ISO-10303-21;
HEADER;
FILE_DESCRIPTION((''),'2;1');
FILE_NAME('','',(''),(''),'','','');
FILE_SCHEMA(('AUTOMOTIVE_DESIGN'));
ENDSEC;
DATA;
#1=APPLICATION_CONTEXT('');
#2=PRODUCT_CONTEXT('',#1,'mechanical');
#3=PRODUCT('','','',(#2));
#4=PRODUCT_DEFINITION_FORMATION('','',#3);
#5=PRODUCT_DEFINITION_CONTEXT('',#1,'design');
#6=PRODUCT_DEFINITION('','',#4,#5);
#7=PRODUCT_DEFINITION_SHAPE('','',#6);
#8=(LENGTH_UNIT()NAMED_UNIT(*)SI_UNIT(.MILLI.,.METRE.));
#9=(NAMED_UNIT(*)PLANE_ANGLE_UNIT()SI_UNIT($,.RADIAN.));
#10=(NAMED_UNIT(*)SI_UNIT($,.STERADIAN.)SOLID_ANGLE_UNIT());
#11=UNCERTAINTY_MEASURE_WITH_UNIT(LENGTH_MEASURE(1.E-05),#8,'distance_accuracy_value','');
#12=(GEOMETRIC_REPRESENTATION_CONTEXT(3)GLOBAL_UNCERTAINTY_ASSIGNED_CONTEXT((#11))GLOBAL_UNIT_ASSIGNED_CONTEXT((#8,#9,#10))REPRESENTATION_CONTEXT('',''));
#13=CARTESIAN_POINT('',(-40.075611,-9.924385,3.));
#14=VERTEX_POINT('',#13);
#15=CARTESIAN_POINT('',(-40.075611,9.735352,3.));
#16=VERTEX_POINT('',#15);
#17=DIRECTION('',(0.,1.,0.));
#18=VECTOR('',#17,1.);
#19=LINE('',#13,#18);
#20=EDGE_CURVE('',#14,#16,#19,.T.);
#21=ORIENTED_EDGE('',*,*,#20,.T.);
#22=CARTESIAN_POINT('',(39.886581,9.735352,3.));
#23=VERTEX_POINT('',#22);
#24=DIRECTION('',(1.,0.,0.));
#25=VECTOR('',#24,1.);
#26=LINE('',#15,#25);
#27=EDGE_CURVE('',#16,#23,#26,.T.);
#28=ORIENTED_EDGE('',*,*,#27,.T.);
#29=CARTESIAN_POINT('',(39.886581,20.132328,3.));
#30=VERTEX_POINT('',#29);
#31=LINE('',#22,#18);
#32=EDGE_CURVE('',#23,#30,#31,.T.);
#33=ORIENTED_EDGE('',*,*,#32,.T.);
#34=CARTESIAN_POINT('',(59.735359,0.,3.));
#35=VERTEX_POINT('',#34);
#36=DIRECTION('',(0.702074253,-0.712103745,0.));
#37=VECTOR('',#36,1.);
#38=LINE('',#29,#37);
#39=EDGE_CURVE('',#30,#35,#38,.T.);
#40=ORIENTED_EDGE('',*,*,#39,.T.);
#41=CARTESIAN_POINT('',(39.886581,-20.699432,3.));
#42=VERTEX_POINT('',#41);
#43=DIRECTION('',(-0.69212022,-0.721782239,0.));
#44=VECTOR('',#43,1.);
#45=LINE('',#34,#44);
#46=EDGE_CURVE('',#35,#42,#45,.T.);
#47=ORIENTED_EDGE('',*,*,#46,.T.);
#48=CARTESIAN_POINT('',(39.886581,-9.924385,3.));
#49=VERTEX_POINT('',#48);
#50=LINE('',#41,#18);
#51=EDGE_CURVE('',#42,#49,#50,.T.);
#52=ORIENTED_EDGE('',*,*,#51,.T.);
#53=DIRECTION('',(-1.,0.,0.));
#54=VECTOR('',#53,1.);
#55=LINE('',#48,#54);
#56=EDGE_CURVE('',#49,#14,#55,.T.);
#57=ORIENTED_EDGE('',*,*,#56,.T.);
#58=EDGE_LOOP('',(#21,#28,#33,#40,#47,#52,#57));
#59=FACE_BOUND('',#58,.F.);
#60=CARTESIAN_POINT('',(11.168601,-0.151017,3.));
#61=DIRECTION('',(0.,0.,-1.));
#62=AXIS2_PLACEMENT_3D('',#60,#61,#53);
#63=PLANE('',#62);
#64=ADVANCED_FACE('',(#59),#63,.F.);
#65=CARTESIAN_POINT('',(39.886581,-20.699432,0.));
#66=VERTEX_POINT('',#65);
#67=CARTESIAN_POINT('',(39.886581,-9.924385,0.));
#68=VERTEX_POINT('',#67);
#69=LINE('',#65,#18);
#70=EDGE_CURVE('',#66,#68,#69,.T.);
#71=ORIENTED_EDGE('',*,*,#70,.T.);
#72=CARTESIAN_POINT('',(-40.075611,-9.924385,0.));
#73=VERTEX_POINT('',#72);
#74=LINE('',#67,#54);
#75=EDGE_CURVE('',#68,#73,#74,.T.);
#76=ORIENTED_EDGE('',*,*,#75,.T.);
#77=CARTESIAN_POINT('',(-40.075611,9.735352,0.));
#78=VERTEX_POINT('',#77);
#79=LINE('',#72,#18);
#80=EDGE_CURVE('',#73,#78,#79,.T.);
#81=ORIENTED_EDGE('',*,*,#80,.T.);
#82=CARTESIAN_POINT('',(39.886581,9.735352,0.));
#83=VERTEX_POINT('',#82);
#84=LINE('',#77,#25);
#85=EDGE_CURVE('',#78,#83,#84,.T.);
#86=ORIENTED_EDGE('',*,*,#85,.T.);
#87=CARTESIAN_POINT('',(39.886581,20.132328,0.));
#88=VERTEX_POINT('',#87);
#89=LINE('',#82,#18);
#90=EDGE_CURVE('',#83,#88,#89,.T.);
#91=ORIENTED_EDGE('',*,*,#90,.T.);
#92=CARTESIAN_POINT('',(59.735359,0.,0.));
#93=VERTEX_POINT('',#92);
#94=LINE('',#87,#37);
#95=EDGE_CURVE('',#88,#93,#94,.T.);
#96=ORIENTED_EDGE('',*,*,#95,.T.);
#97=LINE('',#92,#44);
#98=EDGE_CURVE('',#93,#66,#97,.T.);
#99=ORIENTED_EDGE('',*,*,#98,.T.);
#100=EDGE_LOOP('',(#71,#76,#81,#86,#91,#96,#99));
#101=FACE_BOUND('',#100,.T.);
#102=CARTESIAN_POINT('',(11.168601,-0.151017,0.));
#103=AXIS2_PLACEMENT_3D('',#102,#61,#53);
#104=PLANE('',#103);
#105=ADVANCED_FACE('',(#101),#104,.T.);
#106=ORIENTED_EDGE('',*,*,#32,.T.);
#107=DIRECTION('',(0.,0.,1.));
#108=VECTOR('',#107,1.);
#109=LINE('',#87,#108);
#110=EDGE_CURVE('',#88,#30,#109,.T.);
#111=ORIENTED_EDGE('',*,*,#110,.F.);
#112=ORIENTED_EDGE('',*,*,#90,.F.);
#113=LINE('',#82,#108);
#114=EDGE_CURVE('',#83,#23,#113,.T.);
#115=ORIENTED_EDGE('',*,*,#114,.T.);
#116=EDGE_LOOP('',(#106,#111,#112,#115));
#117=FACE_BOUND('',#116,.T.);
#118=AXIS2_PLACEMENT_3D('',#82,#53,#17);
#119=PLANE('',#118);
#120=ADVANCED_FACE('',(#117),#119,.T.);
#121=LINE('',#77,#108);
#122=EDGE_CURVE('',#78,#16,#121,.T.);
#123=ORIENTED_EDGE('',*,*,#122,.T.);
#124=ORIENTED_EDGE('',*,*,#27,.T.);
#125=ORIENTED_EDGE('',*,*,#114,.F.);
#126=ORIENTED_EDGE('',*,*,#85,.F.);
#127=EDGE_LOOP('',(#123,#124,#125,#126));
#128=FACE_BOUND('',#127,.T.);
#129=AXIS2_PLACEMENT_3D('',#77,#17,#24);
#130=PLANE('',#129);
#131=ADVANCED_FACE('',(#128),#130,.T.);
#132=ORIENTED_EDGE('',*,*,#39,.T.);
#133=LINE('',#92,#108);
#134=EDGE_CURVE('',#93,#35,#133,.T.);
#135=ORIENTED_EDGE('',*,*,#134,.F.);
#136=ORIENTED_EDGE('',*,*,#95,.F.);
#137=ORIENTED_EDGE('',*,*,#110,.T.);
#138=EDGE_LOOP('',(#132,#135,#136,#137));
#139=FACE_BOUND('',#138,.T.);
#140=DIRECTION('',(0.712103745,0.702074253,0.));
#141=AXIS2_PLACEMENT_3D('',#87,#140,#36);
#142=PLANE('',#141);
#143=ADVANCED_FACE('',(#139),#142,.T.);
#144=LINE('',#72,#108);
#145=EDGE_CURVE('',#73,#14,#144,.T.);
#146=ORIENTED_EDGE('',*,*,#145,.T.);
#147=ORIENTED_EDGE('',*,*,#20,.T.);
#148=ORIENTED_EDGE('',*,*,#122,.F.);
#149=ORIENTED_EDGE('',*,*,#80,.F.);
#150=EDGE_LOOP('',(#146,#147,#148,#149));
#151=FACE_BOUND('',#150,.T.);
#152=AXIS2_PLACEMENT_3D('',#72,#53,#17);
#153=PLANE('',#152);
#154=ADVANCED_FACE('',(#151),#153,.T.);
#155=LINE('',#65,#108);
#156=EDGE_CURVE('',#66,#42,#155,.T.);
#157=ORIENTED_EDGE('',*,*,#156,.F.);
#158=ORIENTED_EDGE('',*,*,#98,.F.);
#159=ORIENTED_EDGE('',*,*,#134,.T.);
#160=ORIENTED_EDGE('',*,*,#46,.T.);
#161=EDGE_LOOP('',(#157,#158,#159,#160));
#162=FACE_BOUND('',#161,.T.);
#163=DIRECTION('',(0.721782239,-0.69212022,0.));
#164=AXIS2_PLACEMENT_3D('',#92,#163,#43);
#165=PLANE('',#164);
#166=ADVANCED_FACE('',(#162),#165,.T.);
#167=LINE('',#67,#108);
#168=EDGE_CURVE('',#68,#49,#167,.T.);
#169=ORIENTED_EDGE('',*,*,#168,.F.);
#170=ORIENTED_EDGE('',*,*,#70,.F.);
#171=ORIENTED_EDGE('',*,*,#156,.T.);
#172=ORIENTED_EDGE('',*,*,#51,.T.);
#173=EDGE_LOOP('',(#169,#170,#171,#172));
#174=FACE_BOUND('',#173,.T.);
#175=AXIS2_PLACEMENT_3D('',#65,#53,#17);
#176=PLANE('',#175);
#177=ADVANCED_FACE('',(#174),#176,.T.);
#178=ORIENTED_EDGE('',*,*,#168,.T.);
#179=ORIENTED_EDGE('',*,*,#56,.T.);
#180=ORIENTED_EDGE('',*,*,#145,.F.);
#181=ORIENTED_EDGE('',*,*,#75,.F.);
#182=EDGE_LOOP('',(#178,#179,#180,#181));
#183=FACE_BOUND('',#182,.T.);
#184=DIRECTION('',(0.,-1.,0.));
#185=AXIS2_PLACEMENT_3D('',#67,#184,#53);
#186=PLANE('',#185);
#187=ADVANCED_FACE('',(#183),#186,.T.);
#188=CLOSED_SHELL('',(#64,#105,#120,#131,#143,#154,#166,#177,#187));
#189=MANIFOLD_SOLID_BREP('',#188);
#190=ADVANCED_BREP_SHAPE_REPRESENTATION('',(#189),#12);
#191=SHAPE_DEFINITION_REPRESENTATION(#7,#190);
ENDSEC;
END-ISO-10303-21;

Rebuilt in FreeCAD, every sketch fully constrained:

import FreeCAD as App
import Part
import Sketcher
from FreeCAD import Vector

doc = App.newDocument("Part")
body = doc.addObject("PartDesign::Body", "Body")

# Sketch on XY plane
sketch1 = doc.addObject("Sketcher::SketchObject", "Sketch")
body.addObject(sketch1)
sketch1.AttachmentSupport = (doc.XY_Plane, [""])
sketch1.MapMode = "FlatFace"
sketch1.addGeometry([
    Part.LineSegment(Vector(40, 10, 0), Vector(-40, 10, 0)),  # 0
    Part.LineSegment(Vector(-40, 10, 0), Vector(-40, -10, 0)),  # 1
    Part.LineSegment(Vector(-40, -10, 0), Vector(40, -10, 0)),  # 2
    Part.LineSegment(Vector(40, -10, 0), Vector(40, -21, 0)),  # 3
    Part.LineSegment(Vector(40, -21, 0), Vector(60, 0, 0)),  # 4
    Part.LineSegment(Vector(60, 0, 0), Vector(40, 20, 0)),  # 5
    Part.LineSegment(Vector(40, 20, 0), Vector(40, 10, 0)),  # 6
], False)
sketch1.addConstraint([
    Sketcher.Constraint("Coincident", 0, 2, 1, 1),
    Sketcher.Constraint("Coincident", 1, 2, 2, 1),
    Sketcher.Constraint("Coincident", 2, 2, 3, 1),
    Sketcher.Constraint("Coincident", 3, 2, 4, 1),
    Sketcher.Constraint("Coincident", 4, 2, 5, 1),
    Sketcher.Constraint("Coincident", 5, 2, 6, 1),
    Sketcher.Constraint("Coincident", 6, 2, 0, 1),
    Sketcher.Constraint("Horizontal", 0),
    Sketcher.Constraint("Vertical", 1),
    Sketcher.Constraint("Horizontal", 2),
    Sketcher.Constraint("Vertical", 3),
    Sketcher.Constraint("Vertical", 6),
    Sketcher.Constraint("PointOnObject", 4, 2, -1),
    Sketcher.Constraint("Vertical", 3, 2, 5, 2),
    Sketcher.Constraint("DistanceX", 0, 2, 0, 1, 79.962192),
    Sketcher.Constraint("DistanceY", 1, 2, 1, 1, 19.659737),
    Sketcher.Constraint("DistanceY", 3, 2, 3, 1, 10.775047),
    Sketcher.Constraint("DistanceY", 6, 2, 6, 1, 10.396976),
    Sketcher.Constraint("DistanceX", 0, 2, -1, 1, 40.075611),
    Sketcher.Constraint("DistanceX", -1, 1, 4, 2, 59.735359),
    Sketcher.Constraint("DistanceY", -1, 1, 5, 2, 20.132328),
])
pad1 = doc.addObject("PartDesign::Pad", "Pad")
body.addObject(pad1)
pad1.Profile = sketch1
pad1.Length = 3

doc.recompute()
